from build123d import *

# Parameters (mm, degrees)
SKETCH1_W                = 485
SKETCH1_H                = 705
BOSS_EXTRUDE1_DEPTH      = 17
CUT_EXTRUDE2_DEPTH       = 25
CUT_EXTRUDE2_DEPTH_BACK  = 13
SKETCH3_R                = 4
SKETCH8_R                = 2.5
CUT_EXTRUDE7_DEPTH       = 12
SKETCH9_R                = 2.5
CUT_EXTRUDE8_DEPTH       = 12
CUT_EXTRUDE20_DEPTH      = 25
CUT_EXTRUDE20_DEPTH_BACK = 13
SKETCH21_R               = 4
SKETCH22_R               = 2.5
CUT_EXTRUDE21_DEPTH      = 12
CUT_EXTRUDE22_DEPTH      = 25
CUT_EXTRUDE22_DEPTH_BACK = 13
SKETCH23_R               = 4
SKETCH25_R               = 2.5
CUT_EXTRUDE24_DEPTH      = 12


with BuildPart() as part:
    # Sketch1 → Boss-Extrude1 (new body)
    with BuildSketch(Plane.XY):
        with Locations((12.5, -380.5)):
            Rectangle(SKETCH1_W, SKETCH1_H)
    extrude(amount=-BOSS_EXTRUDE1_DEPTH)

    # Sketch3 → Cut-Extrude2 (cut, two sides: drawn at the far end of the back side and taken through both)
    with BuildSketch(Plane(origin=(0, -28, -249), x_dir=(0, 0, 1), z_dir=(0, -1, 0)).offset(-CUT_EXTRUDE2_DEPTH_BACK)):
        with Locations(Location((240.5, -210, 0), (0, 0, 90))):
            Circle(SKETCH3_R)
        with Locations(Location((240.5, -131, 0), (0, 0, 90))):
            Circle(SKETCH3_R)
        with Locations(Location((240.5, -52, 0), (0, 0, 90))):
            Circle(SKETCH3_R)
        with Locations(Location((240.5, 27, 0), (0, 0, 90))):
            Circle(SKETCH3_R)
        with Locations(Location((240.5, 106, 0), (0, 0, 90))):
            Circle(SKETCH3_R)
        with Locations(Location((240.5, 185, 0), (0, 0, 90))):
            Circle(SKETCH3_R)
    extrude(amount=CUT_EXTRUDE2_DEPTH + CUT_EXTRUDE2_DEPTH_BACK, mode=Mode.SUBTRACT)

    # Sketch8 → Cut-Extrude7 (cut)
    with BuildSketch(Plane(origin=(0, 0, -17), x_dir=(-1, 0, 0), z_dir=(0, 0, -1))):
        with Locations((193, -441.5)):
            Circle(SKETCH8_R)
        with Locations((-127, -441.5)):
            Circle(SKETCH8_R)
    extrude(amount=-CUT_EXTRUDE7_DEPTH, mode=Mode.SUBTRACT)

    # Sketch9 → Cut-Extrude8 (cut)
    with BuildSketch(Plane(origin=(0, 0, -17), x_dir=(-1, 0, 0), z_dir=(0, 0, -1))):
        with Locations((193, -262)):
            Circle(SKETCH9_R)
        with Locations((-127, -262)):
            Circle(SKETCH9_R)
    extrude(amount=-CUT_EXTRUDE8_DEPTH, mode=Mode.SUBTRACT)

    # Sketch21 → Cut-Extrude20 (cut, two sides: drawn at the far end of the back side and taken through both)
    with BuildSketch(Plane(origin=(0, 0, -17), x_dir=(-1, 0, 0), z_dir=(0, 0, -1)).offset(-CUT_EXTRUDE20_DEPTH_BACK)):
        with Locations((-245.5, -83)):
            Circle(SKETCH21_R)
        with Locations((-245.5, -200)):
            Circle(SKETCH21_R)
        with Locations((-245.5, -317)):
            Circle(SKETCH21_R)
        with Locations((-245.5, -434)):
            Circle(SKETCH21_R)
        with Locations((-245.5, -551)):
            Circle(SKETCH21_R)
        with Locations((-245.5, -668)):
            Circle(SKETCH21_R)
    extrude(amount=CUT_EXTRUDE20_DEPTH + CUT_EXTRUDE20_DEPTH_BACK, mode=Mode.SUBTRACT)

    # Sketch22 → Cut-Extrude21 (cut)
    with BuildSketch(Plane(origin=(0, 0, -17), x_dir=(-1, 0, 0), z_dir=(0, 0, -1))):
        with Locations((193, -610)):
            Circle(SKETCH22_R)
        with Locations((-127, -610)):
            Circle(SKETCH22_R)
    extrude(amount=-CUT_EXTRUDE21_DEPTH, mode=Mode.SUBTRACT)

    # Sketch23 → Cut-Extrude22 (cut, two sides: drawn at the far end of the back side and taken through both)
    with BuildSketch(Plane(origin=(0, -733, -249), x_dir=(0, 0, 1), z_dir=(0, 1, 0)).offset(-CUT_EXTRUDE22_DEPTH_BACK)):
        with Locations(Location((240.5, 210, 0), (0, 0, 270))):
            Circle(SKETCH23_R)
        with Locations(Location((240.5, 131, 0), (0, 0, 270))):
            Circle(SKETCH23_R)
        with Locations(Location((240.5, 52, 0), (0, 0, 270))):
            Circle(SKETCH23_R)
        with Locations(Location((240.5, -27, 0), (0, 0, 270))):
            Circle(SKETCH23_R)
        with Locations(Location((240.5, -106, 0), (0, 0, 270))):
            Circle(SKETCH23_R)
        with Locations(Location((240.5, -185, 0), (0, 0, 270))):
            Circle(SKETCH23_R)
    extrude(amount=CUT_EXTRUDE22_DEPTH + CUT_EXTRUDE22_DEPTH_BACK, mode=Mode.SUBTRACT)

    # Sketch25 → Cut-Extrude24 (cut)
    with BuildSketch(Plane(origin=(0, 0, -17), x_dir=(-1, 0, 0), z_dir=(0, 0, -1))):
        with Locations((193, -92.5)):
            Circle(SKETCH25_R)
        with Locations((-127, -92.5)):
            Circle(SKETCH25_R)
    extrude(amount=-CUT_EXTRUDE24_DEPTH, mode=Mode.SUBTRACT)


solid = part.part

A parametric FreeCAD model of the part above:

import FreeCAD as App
import Part
import Sketcher
from FreeCAD import Vector


def add_polygon(sketch, points):
    """Adds a closed chain of lines whose ends are joined by coincident constraints."""
    first, n = sketch.GeometryCount, len(points)
    for a, b in zip(points, points[1:] + points[:1]):
        sketch.addGeometry(Part.LineSegment(App.Vector(*a, 0), App.Vector(*b, 0)), False)
    for i in range(n):
        sketch.addConstraint(Sketcher.Constraint("Coincident", first + i, 2, first + (i + 1) % n, 1))

doc = App.newDocument("Part")
body = doc.addObject("PartDesign::Body", "Body")

sketch1 = doc.addObject("Sketcher::SketchObject", "Sketch")
body.addObject(sketch1)
sketch1.AttachmentSupport = (doc.XY_Plane, [""])
sketch1.MapMode = "FlatFace"
add_polygon(sketch1, [(-230, -28), (-230, -733), (255, -733), (255, -28)])
sketch1.addConstraint(Sketcher.Constraint("Vertical", 0))
sketch1.addConstraint(Sketcher.Constraint("Horizontal", 1))
sketch1.addConstraint(Sketcher.Constraint("Vertical", 2))
sketch1.addConstraint(Sketcher.Constraint("Horizontal", 3))
sketch1.addConstraint(Sketcher.Constraint("DistanceX", 1, 1, 1, 2, 485.0))
sketch1.addConstraint(Sketcher.Constraint("DistanceY", 0, 2, 0, 1, 705.0))
sketch1.addConstraint(Sketcher.Constraint("DistanceX", 0, 2, -1, 1, 230.0))
sketch1.addConstraint(Sketcher.Constraint("DistanceY", 0, 2, -1, 1, 733.0))
pad1 = doc.addObject("PartDesign::Pad", "Pad")
body.addObject(pad1)
pad1.Profile = sketch1
pad1.Length = 17
pad1.Reversed = True

sketch2 = doc.addObject("Sketcher::SketchObject", "Sketch001")
body.addObject(sketch2)
sketch2.AttachmentSupport = (doc.XZ_Plane, [""])
sketch2.MapMode = "FlatFace"
sketch2.AttachmentOffset = App.Placement(Vector(0, 0, 28), App.Rotation())
sketch2.addGeometry(Part.Circle(Vector(210, -8.5, 0), Vector(0, 0, 1), 4), False)
sketch2.addGeometry(Part.Circle(Vector(131, -8.5, 0), Vector(0, 0, 1), 4), False)
sketch2.addGeometry(Part.Circle(Vector(52, -8.5, 0), Vector(0, 0, 1), 4), False)
sketch2.addGeometry(Part.Circle(Vector(-27, -8.5, 0), Vector(0, 0, 1), 4), False)
sketch2.addGeometry(Part.Circle(Vector(-106, -8.5, 0), Vector(0, 0, 1), 4), False)
sketch2.addGeometry(Part.Circle(Vector(-185, -8.5, 0), Vector(0, 0, 1), 4), False)
sketch2.addConstraint(Sketcher.Constraint("Equal", 0, 1))
sketch2.addConstraint(Sketcher.Constraint("Equal", 1, 2))
sketch2.addConstraint(Sketcher.Constraint("Equal", 2, 3))
sketch2.addConstraint(Sketcher.Constraint("Equal", 3, 4))
sketch2.addConstraint(Sketcher.Constraint("Equal", 4, 5))
sketch2.addConstraint(Sketcher.Constraint("Horizontal", 0, 3, 1, 3))
sketch2.addConstraint(Sketcher.Constraint("Horizontal", 1, 3, 2, 3))
sketch2.addConstraint(Sketcher.Constraint("Horizontal", 2, 3, 3, 3))
sketch2.addConstraint(Sketcher.Constraint("Horizontal", 3, 3, 4, 3))
sketch2.addConstraint(Sketcher.Constraint("Horizontal", 4, 3, 5, 3))
sketch2.addConstraint(Sketcher.Constraint("Diameter", 0, 8.0))
sketch2.addConstraint(Sketcher.Constraint("DistanceX", -1, 1, 0, 3, 210.0))
sketch2.addConstraint(Sketcher.Constraint("DistanceX", -1, 1, 1, 3, 131.0))
sketch2.addConstraint(Sketcher.Constraint("DistanceX", -1, 1, 2, 3, 52.0))
sketch2.addConstraint(Sketcher.Constraint("DistanceX", 3, 3, -1, 1, 27.0))
sketch2.addConstraint(Sketcher.Constraint("DistanceX", 4, 3, -1, 1, 106.0))
sketch2.addConstraint(Sketcher.Constraint("DistanceX", 5, 3, -1, 1, 185.0))
sketch2.addConstraint(Sketcher.Constraint("DistanceY", 0, 3, -1, 1, 8.5))
pocket1 = doc.addObject("PartDesign::Pocket", "Pocket")
body.addObject(pocket1)
pocket1.Profile = sketch2
pocket1.Type = "TwoLengths"
pocket1.Length = 25
pocket1.Length2 = 13
pocket1.Reversed = True

sketch3 = doc.addObject("Sketcher::SketchObject", "Sketch002")
body.addObject(sketch3)
sketch3.AttachmentSupport = (doc.XY_Plane, [""])
sketch3.MapMode = "FlatFace"
sketch3.AttachmentOffset = App.Placement(Vector(0, 0, -17), App.Rotation())
sketch3.addGeometry(Part.Circle(Vector(-193, -441.5, 0), Vector(0, 0, 1), 2.5), False)
sketch3.addGeometry(Part.Circle(Vector(127, -441.5, 0), Vector(0, 0, 1), 2.5), False)
sketch3.addConstraint(Sketcher.Constraint("Equal", 0, 1))
sketch3.addConstraint(Sketcher.Constraint("Horizontal", 0, 3, 1, 3))
sketch3.addConstraint(Sketcher.Constraint("Diameter", 0, 5.0))
sketch3.addConstraint(Sketcher.Constraint("DistanceX", 0, 3, -1, 1, 193.0))
sketch3.addConstraint(Sketcher.Constraint("DistanceX", -1, 1, 1, 3, 127.0))
sketch3.addConstraint(Sketcher.Constraint("DistanceY", 0, 3, -1, 1, 441.5))
pocket2 = doc.addObject("PartDesign::Pocket", "Pocket001")
body.addObject(pocket2)
pocket2.Profile = sketch3
pocket2.Length = 12
pocket2.Reversed = True

sketch4 = doc.addObject("Sketcher::SketchObject", "Sketch003")
body.addObject(sketch4)
sketch4.AttachmentSupport = (doc.XY_Plane, [""])
sketch4.MapMode = "FlatFace"
sketch4.AttachmentOffset = App.Placement(Vector(0, 0, -17), App.Rotation())
sketch4.addGeometry(Part.Circle(Vector(-193, -262, 0), Vector(0, 0, 1), 2.5), False)
sketch4.addGeometry(Part.Circle(Vector(127, -262, 0), Vector(0, 0, 1), 2.5), False)
sketch4.addConstraint(Sketcher.Constraint("Equal", 0, 1))
sketch4.addConstraint(Sketcher.Constraint("Horizontal", 0, 3, 1, 3))
sketch4.addConstraint(Sketcher.Constraint("Diameter", 0, 5.0))
sketch4.addConstraint(Sketcher.Constraint("DistanceX", 0, 3, -1, 1, 193.0))
sketch4.addConstraint(Sketcher.Constraint("DistanceY", 0, 3, -1, 1, 262.0))
sketch4.addConstraint(Sketcher.Constraint("DistanceX", -1, 1, 1, 3, 127.0))
pocket3 = doc.addObject("PartDesign::Pocket", "Pocket002")
body.addObject(pocket3)
pocket3.Profile = sketch4
pocket3.Length = 12
pocket3.Reversed = True

sketch5 = doc.addObject("Sketcher::SketchObject", "Sketch004")
body.addObject(sketch5)
sketch5.AttachmentSupport = (doc.XY_Plane, [""])
sketch5.MapMode = "FlatFace"
sketch5.AttachmentOffset = App.Placement(Vector(0, 0, -17), App.Rotation())
sketch5.addGeometry(Part.Circle(Vector(245.5, -83, 0), Vector(0, 0, 1), 4), False)
sketch5.addGeometry(Part.Circle(Vector(245.5, -200, 0), Vector(0, 0, 1), 4), False)
sketch5.addGeometry(Part.Circle(Vector(245.5, -317, 0), Vector(0, 0, 1), 4), False)
sketch5.addGeometry(Part.Circle(Vector(245.5, -434, 0), Vector(0, 0, 1), 4), False)
sketch5.addGeometry(Part.Circle(Vector(245.5, -551, 0), Vector(0, 0, 1), 4), False)
sketch5.addGeometry(Part.Circle(Vector(245.5, -668, 0), Vector(0, 0, 1), 4), False)
sketch5.addConstraint(Sketcher.Constraint("Equal", 0, 1))
sketch5.addConstraint(Sketcher.Constraint("Equal", 1, 2))
sketch5.addConstraint(Sketcher.Constraint("Equal", 2, 3))
sketch5.addConstraint(Sketcher.Constraint("Equal", 3, 4))
sketch5.addConstraint(Sketcher.Constraint("Equal", 4, 5))
sketch5.addConstraint(Sketcher.Constraint("Vertical", 0, 3, 1, 3))
sketch5.addConstraint(Sketcher.Constraint("Vertical", 1, 3, 2, 3))
sketch5.addConstraint(Sketcher.Constraint("Vertical", 2, 3, 3, 3))
sketch5.addConstraint(Sketcher.Constraint("Vertical", 3, 3, 4, 3))
sketch5.addConstraint(Sketcher.Constraint("Vertical", 4, 3, 5, 3))
sketch5.addConstraint(Sketcher.Constraint("Diameter", 0, 8.0))
sketch5.addConstraint(Sketcher.Constraint("DistanceY", 0, 3, -1, 1, 83.0))
sketch5.addConstraint(Sketcher.Constraint("DistanceY", 1, 3, -1, 1, 200.0))
sketch5.addConstraint(Sketcher.Constraint("DistanceY", 2, 3, -1, 1, 317.0))
sketch5.addConstraint(Sketcher.Constraint("DistanceY", 3, 3, -1, 1, 434.0))
sketch5.addConstraint(Sketcher.Constraint("DistanceY", 4, 3, -1, 1, 551.0))
sketch5.addConstraint(Sketcher.Constraint("DistanceY", 5, 3, -1, 1, 668.0))
sketch5.addConstraint(Sketcher.Constraint("DistanceX", -1, 1, 0, 3, 245.5))
pocket4 = doc.addObject("PartDesign::Pocket", "Pocket003")
body.addObject(pocket4)
pocket4.Profile = sketch5
pocket4.Type = "TwoLengths"
pocket4.Length = 25
pocket4.Length2 = 13

sketch6 = doc.addObject("Sketcher::SketchObject", "Sketch005")
body.addObject(sketch6)
sketch6.AttachmentSupport = (doc.XY_Plane, [""])
sketch6.MapMode = "FlatFace"
sketch6.AttachmentOffset = App.Placement(Vector(0, 0, -17), App.Rotation())
sketch6.addGeometry(Part.Circle(Vector(-193, -610, 0), Vector(0, 0, 1), 2.5), False)
sketch6.addGeometry(Part.Circle(Vector(127, -610, 0), Vector(0, 0, 1), 2.5), False)
sketch6.addConstraint(Sketcher.Constraint("Equal", 0, 1))
sketch6.addConstraint(Sketcher.Constraint("Horizontal", 0, 3, 1, 3))
sketch6.addConstraint(Sketcher.Constraint("Diameter", 0, 5.0))
sketch6.addConstraint(Sketcher.Constraint("DistanceX", 0, 3, -1, 1, 193.0))
sketch6.addConstraint(Sketcher.Constraint("DistanceY", 0, 3, -1, 1, 610.0))
sketch6.addConstraint(Sketcher.Constraint("DistanceX", -1, 1, 1, 3, 127.0))
pocket5 = doc.addObject("PartDesign::Pocket", "Pocket004")
body.addObject(pocket5)
pocket5.Profile = sketch6
pocket5.Length = 12
pocket5.Reversed = True

sketch7 = doc.addObject("Sketcher::SketchObject", "Sketch006")
body.addObject(sketch7)
sketch7.AttachmentSupport = (doc.XZ_Plane, [""])
sketch7.MapMode = "FlatFace"
sketch7.AttachmentOffset = App.Placement(Vector(0, 0, 733), App.Rotation())
sketch7.addGeometry(Part.Circle(Vector(210, -8.5, 0), Vector(0, 0, 1), 4), False)
sketch7.addGeometry(Part.Circle(Vector(131, -8.5, 0), Vector(0, 0, 1), 4), False)
sketch7.addGeometry(Part.Circle(Vector(52, -8.5, 0), Vector(0, 0, 1), 4), False)
sketch7.addGeometry(Part.Circle(Vector(-27, -8.5, 0), Vector(0, 0, 1), 4), False)
sketch7.addGeometry(Part.Circle(Vector(-106, -8.5, 0), Vector(0, 0, 1), 4), False)
sketch7.addGeometry(Part.Circle(Vector(-185, -8.5, 0), Vector(0, 0, 1), 4), False)
sketch7.addConstraint(Sketcher.Constraint("Equal", 0, 1))
sketch7.addConstraint(Sketcher.Constraint("Equal", 1, 2))
sketch7.addConstraint(Sketcher.Constraint("Equal", 2, 3))
sketch7.addConstraint(Sketcher.Constraint("Equal", 3, 4))
sketch7.addConstraint(Sketcher.Constraint("Equal", 4, 5))
sketch7.addConstraint(Sketcher.Constraint("Horizontal", 0, 3, 1, 3))
sketch7.addConstraint(Sketcher.Constraint("Horizontal", 1, 3, 2, 3))
sketch7.addConstraint(Sketcher.Constraint("Horizontal", 2, 3, 3, 3))
sketch7.addConstraint(Sketcher.Constraint("Horizontal", 3, 3, 4, 3))
sketch7.addConstraint(Sketcher.Constraint("Horizontal", 4, 3, 5, 3))
sketch7.addConstraint(Sketcher.Constraint("Diameter", 0, 8.0))
sketch7.addConstraint(Sketcher.Constraint("DistanceX", -1, 1, 0, 3, 210.0))
sketch7.addConstraint(Sketcher.Constraint("DistanceX", -1, 1, 1, 3, 131.0))
sketch7.addConstraint(Sketcher.Constraint("DistanceX", -1, 1, 2, 3, 52.0))
sketch7.addConstraint(Sketcher.Constraint("DistanceX", 3, 3, -1, 1, 27.0))
sketch7.addConstraint(Sketcher.Constraint("DistanceX", 4, 3, -1, 1, 106.0))
sketch7.addConstraint(Sketcher.Constraint("DistanceX", 5, 3, -1, 1, 185.0))
sketch7.addConstraint(Sketcher.Constraint("DistanceY", 0, 3, -1, 1, 8.5))
pocket6 = doc.addObject("PartDesign::Pocket", "Pocket005")
body.addObject(pocket6)
pocket6.Profile = sketch7
pocket6.Type = "TwoLengths"
pocket6.Length = 25
pocket6.Length2 = 13

sketch8 = doc.addObject("Sketcher::SketchObject", "Sketch007")
body.addObject(sketch8)
sketch8.AttachmentSupport = (doc.XY_Plane, [""])
sketch8.MapMode = "FlatFace"
sketch8.AttachmentOffset = App.Placement(Vector(0, 0, -17), App.Rotation())
sketch8.addGeometry(Part.Circle(Vector(-193, -92.5, 0), Vector(0, 0, 1), 2.5), False)
sketch8.addGeometry(Part.Circle(Vector(127, -92.5, 0), Vector(0, 0, 1), 2.5), False)
sketch8.addConstraint(Sketcher.Constraint("Equal", 0, 1))
sketch8.addConstraint(Sketcher.Constraint("Horizontal", 0, 3, 1, 3))
sketch8.addConstraint(Sketcher.Constraint("Diameter", 0, 5.0))
sketch8.addConstraint(Sketcher.Constraint("DistanceX", 0, 3, -1, 1, 193.0))
sketch8.addConstraint(Sketcher.Constraint("DistanceX", -1, 1, 1, 3, 127.0))
sketch8.addConstraint(Sketcher.Constraint("DistanceY", 0, 3, -1, 1, 92.5))
pocket7 = doc.addObject("PartDesign::Pocket", "Pocket006")
body.addObject(pocket7)
pocket7.Profile = sketch8
pocket7.Length = 12
pocket7.Reversed = True

doc.recompute()
